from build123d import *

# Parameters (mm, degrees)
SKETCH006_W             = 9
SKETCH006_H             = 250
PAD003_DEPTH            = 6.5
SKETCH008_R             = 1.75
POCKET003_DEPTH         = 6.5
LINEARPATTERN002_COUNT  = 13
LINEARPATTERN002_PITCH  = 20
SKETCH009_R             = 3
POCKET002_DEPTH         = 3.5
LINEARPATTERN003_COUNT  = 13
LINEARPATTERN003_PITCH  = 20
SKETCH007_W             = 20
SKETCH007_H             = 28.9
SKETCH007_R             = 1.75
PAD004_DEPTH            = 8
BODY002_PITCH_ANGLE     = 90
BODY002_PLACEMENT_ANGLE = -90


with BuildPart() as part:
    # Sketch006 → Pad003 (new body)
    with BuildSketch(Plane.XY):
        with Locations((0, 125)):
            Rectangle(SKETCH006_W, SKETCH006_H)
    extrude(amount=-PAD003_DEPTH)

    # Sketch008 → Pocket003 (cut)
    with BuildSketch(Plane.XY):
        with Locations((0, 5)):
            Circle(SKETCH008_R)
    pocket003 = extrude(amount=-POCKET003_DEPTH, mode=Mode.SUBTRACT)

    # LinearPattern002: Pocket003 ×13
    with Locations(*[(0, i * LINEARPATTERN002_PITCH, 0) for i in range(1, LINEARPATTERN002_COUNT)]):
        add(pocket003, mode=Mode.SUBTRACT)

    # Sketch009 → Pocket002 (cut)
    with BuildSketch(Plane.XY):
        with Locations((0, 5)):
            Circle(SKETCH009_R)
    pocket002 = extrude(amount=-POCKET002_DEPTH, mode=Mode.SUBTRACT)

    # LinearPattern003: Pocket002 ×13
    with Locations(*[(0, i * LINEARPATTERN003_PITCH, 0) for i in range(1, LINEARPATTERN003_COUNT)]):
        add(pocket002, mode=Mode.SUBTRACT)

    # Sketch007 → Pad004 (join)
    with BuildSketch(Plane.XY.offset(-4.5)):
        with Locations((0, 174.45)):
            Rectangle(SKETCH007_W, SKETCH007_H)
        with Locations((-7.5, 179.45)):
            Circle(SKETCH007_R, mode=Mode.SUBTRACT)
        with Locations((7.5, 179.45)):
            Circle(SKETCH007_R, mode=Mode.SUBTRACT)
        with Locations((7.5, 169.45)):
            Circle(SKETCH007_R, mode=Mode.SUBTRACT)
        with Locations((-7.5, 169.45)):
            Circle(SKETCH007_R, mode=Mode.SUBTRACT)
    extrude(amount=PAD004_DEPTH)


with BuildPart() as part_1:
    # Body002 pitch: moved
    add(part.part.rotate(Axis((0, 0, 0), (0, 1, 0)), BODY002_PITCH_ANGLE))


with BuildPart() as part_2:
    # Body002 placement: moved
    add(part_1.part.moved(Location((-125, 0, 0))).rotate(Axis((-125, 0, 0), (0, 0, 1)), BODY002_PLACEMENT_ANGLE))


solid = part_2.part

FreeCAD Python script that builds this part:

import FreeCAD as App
import Part
import Sketcher


def add_polygon(sketch, points):
    """Adds a closed chain of lines whose ends are joined by coincident constraints."""
    first, n = sketch.GeometryCount, len(points)
    for a, b in zip(points, points[1:] + points[:1]):
        sketch.addGeometry(Part.LineSegment(App.Vector(*a, 0), App.Vector(*b, 0)), False)
    for i in range(n):
        sketch.addConstraint(Sketcher.Constraint("Coincident", first + i, 2, first + (i + 1) % n, 1))

doc = App.newDocument("Part")
body = doc.addObject("PartDesign::Body", "Body")

# Sketch on XY plane
sketch1 = doc.addObject("Sketcher::SketchObject", "Sketch")
body.addObject(sketch1)
sketch1.AttachmentSupport = (doc.XY_Plane, [""])
sketch1.MapMode = "FlatFace"
add_polygon(sketch1, [(-4, 250), (-4, 0), (4, 0), (4, 250)])  # lines 0-3
sketch1.addConstraint(Sketcher.Constraint("Vertical", 0))
sketch1.addConstraint(Sketcher.Constraint("Horizontal", 1))
sketch1.addConstraint(Sketcher.Constraint("Vertical", 2))
sketch1.addConstraint(Sketcher.Constraint("Horizontal", 3))
sketch1.addConstraint(Sketcher.Constraint("Symmetric", 0, 2, 1, 2, -1, 1))
sketch1.addConstraint(Sketcher.Constraint("DistanceX", 1, 1, 1, 2, 9.0))
sketch1.addConstraint(Sketcher.Constraint("DistanceY", 0, 2, 0, 1, 250.0))
pad1 = doc.addObject("PartDesign::Pad", "Pad")
body.addObject(pad1)
pad1.Profile = sketch1
pad1.Length = 6.5
pad1.Reversed = True

# Sketch on XY plane
sketch2 = doc.addObject("Sketcher::SketchObject", "Sketch001")
body.addObject(sketch2)
sketch2.AttachmentSupport = (doc.XY_Plane, [""])
sketch2.MapMode = "FlatFace"
sketch2.addGeometry(Part.Circle(App.Vector(0, 5, 0), App.Vector(0, 0, 1), 1.8), False)
sketch2.addConstraint(Sketcher.Constraint("PointOnObject", 0, 3, -2))
sketch2.addConstraint(Sketcher.Constraint("Diameter", 0, 3.5))
sketch2.addConstraint(Sketcher.Constraint("DistanceY", -1, 1, 0, 3, 5.0))
pocket1 = doc.addObject("PartDesign::Pocket", "Pocket")
body.addObject(pocket1)
pocket1.Profile = sketch2
pocket1.Length = 6.5
doc.recompute()

linearpattern = doc.addObject("PartDesign::LinearPattern", "LinearPattern")
body.addObject(linearpattern)
linearpattern.Originals = [pocket1]
linearpattern.Direction = (doc.Y_Axis, [""])
linearpattern.Mode = "offset"
linearpattern.Offset = 20
linearpattern.Occurrences = 13
body.Tip = linearpattern

# Sketch on XY plane
sketch3 = doc.addObject("Sketcher::SketchObject", "Sketch002")
body.addObject(sketch3)
sketch3.AttachmentSupport = (doc.XY_Plane, [""])
sketch3.MapMode = "FlatFace"
sketch3.addGeometry(Part.Circle(App.Vector(0, 5, 0), App.Vector(0, 0, 1), 3), False)
sketch3.addConstraint(Sketcher.Constraint("PointOnObject", 0, 3, -2))
sketch3.addConstraint(Sketcher.Constraint("Diameter", 0, 6.0))
sketch3.addConstraint(Sketcher.Constraint("DistanceY", -1, 1, 0, 3, 5.0))
pocket2 = doc.addObject("PartDesign::Pocket", "Pocket001")
body.addObject(pocket2)
pocket2.Profile = sketch3
pocket2.Length = 3.5
doc.recompute()

linearpattern2 = doc.addObject("PartDesign::LinearPattern", "LinearPattern001")
body.addObject(linearpattern2)
linearpattern2.Originals = [pocket2]
linearpattern2.Direction = (doc.Y_Axis, [""])
linearpattern2.Mode = "offset"
linearpattern2.Offset = 20
linearpattern2.Occurrences = 13
body.Tip = linearpattern2

# Sketch on XY plane
sketch4 = doc.addObject("Sketcher::SketchObject", "Sketch003")
body.addObject(sketch4)
sketch4.AttachmentSupport = (doc.XY_Plane, [""])
sketch4.MapMode = "FlatFace"
sketch4.AttachmentOffset = App.Placement(App.Vector(0, 0, -4.5), App.Rotation())
add_polygon(sketch4, [(-10, 188.9), (-10, 160), (10, 160), (10, 188.9)])  # lines 0-3
sketch4.addGeometry(Part.Circle(App.Vector(-7.5, 169.4, 0), App.Vector(0, 0, 1), 1.8), False)  # 4
sketch4.addGeometry(Part.Circle(App.Vector(7.5, 169.4, 0), App.Vector(0, 0, 1), 1.8), False)  # 5
sketch4.addGeometry(Part.Circle(App.Vector(-7.5, 179.4, 0), App.Vector(0, 0, 1), 1.8), False)  # 6
sketch4.addGeometry(Part.Circle(App.Vector(7.5, 179.4, 0), App.Vector(0, 0, 1), 1.8), False)  # 7
sketch4.addConstraint(Sketcher.Constraint("Vertical", 0))
sketch4.addConstraint(Sketcher.Constraint("Horizontal", 1))
sketch4.addConstraint(Sketcher.Constraint("Vertical", 2))
sketch4.addConstraint(Sketcher.Constraint("Horizontal", 3))
sketch4.addConstraint(Sketcher.Constraint("Equal", 4, 5))
sketch4.addConstraint(Sketcher.Constraint("Equal", 5, 6))
sketch4.addConstraint(Sketcher.Constraint("Equal", 6, 7))
sketch4.addConstraint(Sketcher.Constraint("Symmetric", 4, 3, 5, 3, -2))
sketch4.addConstraint(Sketcher.Constraint("Symmetric", 6, 3, 7, 3, -2))
sketch4.addConstraint(Sketcher.Constraint("Vertical", 4, 3, 6, 3))
sketch4.addConstraint(Sketcher.Constraint("Diameter", 4, 3.5))
sketch4.addConstraint(Sketcher.Constraint("DistanceX", 1, 1, 1, 2, 20.0))
sketch4.addConstraint(Sketcher.Constraint("DistanceY", 0, 2, 0, 1, 28.9))
sketch4.addConstraint(Sketcher.Constraint("DistanceX", 0, 2, -1, 1, 10.0))
sketch4.addConstraint(Sketcher.Constraint("DistanceY", -1, 1, 0, 2, 160.0))
sketch4.addConstraint(Sketcher.Constraint("DistanceX", 4, 3, 5, 3, 15.0))
sketch4.addConstraint(Sketcher.Constraint("DistanceY", 4, 3, 6, 3, 10.0))
sketch4.addConstraint(Sketcher.Constraint("DistanceY", -1, 1, 4, 3, 169.45))
pad2 = doc.addObject("PartDesign::Pad", "Pad001")
body.addObject(pad2)
pad2.Profile = sketch4
pad2.Length = 8
body2 = doc.addObject("PartDesign::Body", "Body001")
doc.recompute()

body.Placement = App.Placement(App.Vector(0, 0, 0), App.Rotation(App.Vector(0, 1, 0), 90))
boolean = doc.addObject("PartDesign::Boolean", "Boolean")
body2.addObject(boolean)
boolean.Type = "Fuse"
boolean.addObjects([body])
body3 = doc.addObject("PartDesign::Body", "Body002")
doc.recompute()

body2.Placement = App.Placement(App.Vector(-125, 0, 0), App.Rotation(App.Vector(0, 0, 1), 270))
boolean2 = doc.addObject("PartDesign::Boolean", "Boolean001")
body3.addObject(boolean2)
boolean2.Type = "Fuse"
boolean2.addObjects([body2])

doc.recompute()
